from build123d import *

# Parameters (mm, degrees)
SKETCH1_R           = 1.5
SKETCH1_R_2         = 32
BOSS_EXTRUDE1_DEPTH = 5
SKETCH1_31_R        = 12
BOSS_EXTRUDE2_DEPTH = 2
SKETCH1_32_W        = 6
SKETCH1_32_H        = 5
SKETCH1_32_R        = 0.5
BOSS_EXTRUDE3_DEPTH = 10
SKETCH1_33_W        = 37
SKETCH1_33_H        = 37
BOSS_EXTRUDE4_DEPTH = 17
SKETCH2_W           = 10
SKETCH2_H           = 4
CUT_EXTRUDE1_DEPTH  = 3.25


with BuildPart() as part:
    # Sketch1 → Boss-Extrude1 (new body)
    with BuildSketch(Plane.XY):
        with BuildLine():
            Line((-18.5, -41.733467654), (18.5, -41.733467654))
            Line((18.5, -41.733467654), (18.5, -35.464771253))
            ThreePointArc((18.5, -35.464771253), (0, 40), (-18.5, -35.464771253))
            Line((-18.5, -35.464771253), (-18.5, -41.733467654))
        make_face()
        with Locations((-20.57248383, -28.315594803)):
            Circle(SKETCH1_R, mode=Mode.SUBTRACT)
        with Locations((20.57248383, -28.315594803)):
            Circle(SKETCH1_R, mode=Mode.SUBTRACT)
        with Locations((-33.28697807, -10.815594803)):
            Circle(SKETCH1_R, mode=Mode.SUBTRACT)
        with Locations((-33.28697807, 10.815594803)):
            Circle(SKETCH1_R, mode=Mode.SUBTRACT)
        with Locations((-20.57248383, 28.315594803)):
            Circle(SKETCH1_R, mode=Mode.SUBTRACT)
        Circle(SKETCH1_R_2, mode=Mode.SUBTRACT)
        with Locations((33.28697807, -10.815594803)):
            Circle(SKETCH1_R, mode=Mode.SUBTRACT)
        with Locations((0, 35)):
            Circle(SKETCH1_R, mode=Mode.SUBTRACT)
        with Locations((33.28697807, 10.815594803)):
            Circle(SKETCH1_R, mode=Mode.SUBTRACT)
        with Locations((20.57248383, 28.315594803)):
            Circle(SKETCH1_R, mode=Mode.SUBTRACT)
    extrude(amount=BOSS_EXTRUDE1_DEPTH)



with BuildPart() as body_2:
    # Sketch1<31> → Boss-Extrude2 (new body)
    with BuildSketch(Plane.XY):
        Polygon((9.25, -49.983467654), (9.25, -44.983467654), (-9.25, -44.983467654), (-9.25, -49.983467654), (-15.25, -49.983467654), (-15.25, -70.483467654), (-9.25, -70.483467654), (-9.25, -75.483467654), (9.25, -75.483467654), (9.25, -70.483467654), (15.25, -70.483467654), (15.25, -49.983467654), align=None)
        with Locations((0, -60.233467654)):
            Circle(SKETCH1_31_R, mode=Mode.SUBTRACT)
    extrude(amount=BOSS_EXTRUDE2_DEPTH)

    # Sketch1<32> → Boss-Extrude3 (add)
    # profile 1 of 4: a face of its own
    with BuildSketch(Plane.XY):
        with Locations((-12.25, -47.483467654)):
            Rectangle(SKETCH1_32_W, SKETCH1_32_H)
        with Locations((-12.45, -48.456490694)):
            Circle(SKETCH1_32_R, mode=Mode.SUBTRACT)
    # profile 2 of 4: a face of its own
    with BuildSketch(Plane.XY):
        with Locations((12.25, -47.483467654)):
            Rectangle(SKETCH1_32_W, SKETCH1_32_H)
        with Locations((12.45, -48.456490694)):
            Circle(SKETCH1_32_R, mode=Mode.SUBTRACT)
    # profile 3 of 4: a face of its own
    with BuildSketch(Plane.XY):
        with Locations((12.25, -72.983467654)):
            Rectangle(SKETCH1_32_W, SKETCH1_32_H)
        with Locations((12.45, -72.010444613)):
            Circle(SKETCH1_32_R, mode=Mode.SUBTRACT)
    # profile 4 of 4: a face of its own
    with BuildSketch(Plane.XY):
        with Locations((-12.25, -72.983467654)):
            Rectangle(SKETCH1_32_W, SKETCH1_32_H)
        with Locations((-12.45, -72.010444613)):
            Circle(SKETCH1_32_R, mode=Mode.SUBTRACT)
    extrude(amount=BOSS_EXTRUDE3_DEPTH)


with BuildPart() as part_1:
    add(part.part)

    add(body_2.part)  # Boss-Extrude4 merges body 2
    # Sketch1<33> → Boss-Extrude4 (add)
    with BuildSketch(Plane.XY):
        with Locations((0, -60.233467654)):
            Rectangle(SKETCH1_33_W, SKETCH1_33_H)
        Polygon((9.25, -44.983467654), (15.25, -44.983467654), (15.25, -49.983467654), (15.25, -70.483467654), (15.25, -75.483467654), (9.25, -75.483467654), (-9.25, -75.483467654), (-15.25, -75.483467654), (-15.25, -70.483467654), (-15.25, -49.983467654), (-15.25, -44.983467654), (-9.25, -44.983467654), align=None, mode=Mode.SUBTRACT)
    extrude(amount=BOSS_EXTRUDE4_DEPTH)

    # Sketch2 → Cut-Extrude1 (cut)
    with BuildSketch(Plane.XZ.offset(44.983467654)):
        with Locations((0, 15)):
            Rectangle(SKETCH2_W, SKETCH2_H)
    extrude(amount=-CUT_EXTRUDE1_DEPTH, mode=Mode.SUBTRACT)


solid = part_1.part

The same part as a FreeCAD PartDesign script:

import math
import FreeCAD as App
import Part
import Sketcher


def add_polygon(sketch, points):
    """Adds a closed chain of lines whose ends are joined by coincident constraints."""
    first, n = sketch.GeometryCount, len(points)
    for a, b in zip(points, points[1:] + points[:1]):
        sketch.addGeometry(Part.LineSegment(App.Vector(*a, 0), App.Vector(*b, 0)), False)
    for i in range(n):
        sketch.addConstraint(Sketcher.Constraint("Coincident", first + i, 2, first + (i + 1) % n, 1))

doc = App.newDocument("Part")
body = doc.addObject("PartDesign::Body", "Body")

# Sketch on XY plane
sketch1 = doc.addObject("Sketcher::SketchObject", "Sketch")
body.addObject(sketch1)
sketch1.AttachmentSupport = (doc.XY_Plane, [""])
sketch1.MapMode = "FlatFace"
sketch1.addGeometry([
    Part.LineSegment(App.Vector(-18.5, -41.7, 0), App.Vector(18.5, -41.7, 0)),  # 0
    Part.LineSegment(App.Vector(18.5, -41.7, 0), App.Vector(18.5, -35.5, 0)),  # 1
    Part.ArcOfCircle(Part.Circle(App.Vector(0, 0, 0), App.Vector(0, 0, 1), 40), math.radians(-62), math.radians(242)),  # 2
    Part.LineSegment(App.Vector(-18.5, -35.5, 0), App.Vector(-18.5, -41.7, 0)),  # 3
    Part.Circle(App.Vector(-20.6, -28.3, 0), App.Vector(0, 0, 1), 1.5),  # 4
    Part.Circle(App.Vector(-33.3, -10.8, 0), App.Vector(0, 0, 1), 1.5),  # 5
    Part.Circle(App.Vector(20.6, -28.3, 0), App.Vector(0, 0, 1), 1.5),  # 6
    Part.Circle(App.Vector(0, 0, 0), App.Vector(0, 0, 1), 32),  # 7
    Part.Circle(App.Vector(33.3, -10.8, 0), App.Vector(0, 0, 1), 1.5),  # 8
    Part.Circle(App.Vector(-33.3, 10.8, 0), App.Vector(0, 0, 1), 1.5),  # 9
    Part.Circle(App.Vector(-20.6, 28.3, 0), App.Vector(0, 0, 1), 1.5),  # 10
    Part.Circle(App.Vector(33.3, 10.8, 0), App.Vector(0, 0, 1), 1.5),  # 11
    Part.Circle(App.Vector(0, 35, 0), App.Vector(0, 0, 1), 1.5),  # 12
    Part.Circle(App.Vector(20.6, 28.3, 0), App.Vector(0, 0, 1), 1.5),  # 13
], False)
sketch1.addConstraint([
    Sketcher.Constraint("Coincident", 0, 2, 1, 1),
    Sketcher.Constraint("Coincident", 1, 2, 2, 1),
    Sketcher.Constraint("Coincident", 2, 2, 3, 1),
    Sketcher.Constraint("Coincident", 3, 2, 0, 1),
    Sketcher.Constraint("Horizontal", 0),
    Sketcher.Constraint("Vertical", 1),
    Sketcher.Constraint("Vertical", 3),
    Sketcher.Constraint("Coincident", 2, 3, -1, 1),
    Sketcher.Constraint("Coincident", 7, 3, -1, 1),
    Sketcher.Constraint("Equal", 4, 5),
    Sketcher.Constraint("Equal", 5, 6),
    Sketcher.Constraint("Equal", 6, 8),
    Sketcher.Constraint("Equal", 8, 9),
    Sketcher.Constraint("Equal", 9, 10),
    Sketcher.Constraint("Equal", 10, 11),
    Sketcher.Constraint("Equal", 11, 12),
    Sketcher.Constraint("Equal", 12, 13),
    Sketcher.Constraint("Symmetric", 8, 3, 9, 3, -1, 1),
    Sketcher.Constraint("Symmetric", 6, 3, 10, 3, -1, 1),
    Sketcher.Constraint("Symmetric", 5, 3, 11, 3, -1, 1),
    Sketcher.Constraint("Symmetric", 4, 3, 13, 3, -1, 1),
    Sketcher.Constraint("Symmetric", 4, 3, 6, 3, -2),
    Sketcher.Constraint("Symmetric", 5, 3, 8, 3, -2),
    Sketcher.Constraint("PointOnObject", 12, 3, -2),
    Sketcher.Constraint("Horizontal", 1, 2, 2, 2),
    Sketcher.Constraint("Diameter", 4, 3.0),
    Sketcher.Constraint("Diameter", 7, 64.0),
    Sketcher.Constraint("Radius", 2, 40.0),
    Sketcher.Constraint("DistanceX", 0, 1, 0, 2, 37.0),
    Sketcher.Constraint("DistanceY", -1, 1, 12, 3, 35.0),
    Sketcher.Constraint("DistanceY", 4, 3, 5, 3, 17.5),
    Sketcher.Constraint("DistanceY", 1, 1, 1, 2, 6.268696),
    Sketcher.Constraint("DistanceX", 5, 3, -1, 1, 33.286978),
    Sketcher.Constraint("DistanceX", 5, 3, 6, 3, 53.859462),
    Sketcher.Constraint("DistanceY", 5, 3, 9, 3, 21.63119),
])
pad1 = doc.addObject("PartDesign::Pad", "Pad")
body.addObject(pad1)
pad1.Profile = sketch1
pad1.Length = 5
body2 = doc.addObject("PartDesign::Body", "Body001")

# Sketch on XY plane
sketch2 = doc.addObject("Sketcher::SketchObject", "Sketch001")
body2.addObject(sketch2)
sketch2.AttachmentSupport = (doc.getObject("XY_Plane001"), [""])
sketch2.MapMode = "FlatFace"
add_polygon(sketch2, [(9, -50), (9, -45), (-9, -45), (-9, -50), (-15, -50), (-15, -70), (-9, -70), (-9, -75), (9, -75), (9, -70), (15, -70), (15, -50)])  # lines 0-11
sketch2.addGeometry(Part.Circle(App.Vector(0, -60, 0), App.Vector(0, 0, 1), 12), False)  # 12
sketch2.addConstraint([
    Sketcher.Constraint("Vertical", 0),
    Sketcher.Constraint("Horizontal", 1),
    Sketcher.Constraint("Vertical", 2),
    Sketcher.Constraint("Horizontal", 3),
    Sketcher.Constraint("Vertical", 4),
    Sketcher.Constraint("Horizontal", 5),
    Sketcher.Constraint("Vertical", 6),
    Sketcher.Constraint("Horizontal", 7),
    Sketcher.Constraint("Vertical", 8),
    Sketcher.Constraint("Horizontal", 9),
    Sketcher.Constraint("Vertical", 10),
    Sketcher.Constraint("Horizontal", 11),
    Sketcher.Constraint("Symmetric", 5, 2, 8, 2, -2),
    Sketcher.Constraint("Symmetric", 3, 2, 10, 2, -2),
    Sketcher.Constraint("PointOnObject", 12, 3, -2),
    Sketcher.Constraint("Vertical", 2, 2, 5, 2),
    Sketcher.Constraint("Vertical", 0, 2, 7, 2),
    Sketcher.Constraint("Equal", 2, 6),
    Sketcher.Constraint("Diameter", 12, 24.0),
    Sketcher.Constraint("DistanceX", 3, 2, 3, 1, 6.0),
    Sketcher.Constraint("DistanceY", 0, 1, 0, 2, 5.0),
    Sketcher.Constraint("DistanceX", 1, 2, 1, 1, 18.5),
    Sketcher.Constraint("DistanceY", 4, 2, 4, 1, 20.5),
    Sketcher.Constraint("DistanceY", 12, 3, 0, 2, 15.25),
    Sketcher.Constraint("DistanceY", 12, 3, -1, 1, 60.233468),
])
pad2 = doc.addObject("PartDesign::Pad", "Pad001")
body2.addObject(pad2)
pad2.Profile = sketch2
pad2.Length = 2

# Sketch on XY plane
sketch3 = doc.addObject("Sketcher::SketchObject", "Sketch002")
body2.addObject(sketch3)
sketch3.AttachmentSupport = (doc.getObject("XY_Plane001"), [""])
sketch3.MapMode = "FlatFace"
add_polygon(sketch3, [(-15.2, -45), (-15.2, -50), (-9.2, -50), (-9.2, -45)])  # lines 0-3
sketch3.addGeometry(Part.Circle(App.Vector(-12.4, -48.5, 0), App.Vector(0, 0, 1), 0.5), False)  # 4
add_polygon(sketch3, [(9.2, -45), (9.2, -50), (15.2, -50), (15.2, -45)])  # lines 5-8
sketch3.addGeometry(Part.Circle(App.Vector(12.4, -48.5, 0), App.Vector(0, 0, 1), 0.5), False)  # 9
add_polygon(sketch3, [(9.2, -70.5), (9.2, -75.5), (15.2, -75.5), (15.2, -70.5)])  # lines 10-13
sketch3.addGeometry(Part.Circle(App.Vector(12.4, -72, 0), App.Vector(0, 0, 1), 0.5), False)  # 14
add_polygon(sketch3, [(-15.2, -70.5), (-15.2, -75.5), (-9.2, -75.5), (-9.2, -70.5)])  # lines 15-18
sketch3.addGeometry(Part.Circle(App.Vector(-12.4, -72, 0), App.Vector(0, 0, 1), 0.5), False)  # 19
sketch3.addConstraint([
    Sketcher.Constraint("Vertical", 0),
    Sketcher.Constraint("Horizontal", 1),
    Sketcher.Constraint("Vertical", 2),
    Sketcher.Constraint("Horizontal", 3),
    Sketcher.Constraint("Vertical", 5),
    Sketcher.Constraint("Horizontal", 6),
    Sketcher.Constraint("Vertical", 7),
    Sketcher.Constraint("Horizontal", 8),
    Sketcher.Constraint("Vertical", 10),
    Sketcher.Constraint("Horizontal", 11),
    Sketcher.Constraint("Vertical", 12),
    Sketcher.Constraint("Horizontal", 13),
    Sketcher.Constraint("Vertical", 15),
    Sketcher.Constraint("Horizontal", 16),
    Sketcher.Constraint("Vertical", 17),
    Sketcher.Constraint("Horizontal", 18),
    Sketcher.Constraint("Equal", 4, 9),
    Sketcher.Constraint("Equal", 9, 14),
    Sketcher.Constraint("Equal", 14, 19),
    Sketcher.Constraint("Symmetric", 4, 3, 9, 3, -2),
    Sketcher.Constraint("Symmetric", 14, 3, 19, 3, -2),
    Sketcher.Constraint("Symmetric", 1, 2, 5, 2, -2),
    Sketcher.Constraint("Symmetric", 3, 2, 7, 2, -2),
    Sketcher.Constraint("Symmetric", 11, 2, 15, 2, -2),
    Sketcher.Constraint("Symmetric", 13, 2, 17, 2, -2),
    Sketcher.Constraint("Vertical", 9, 3, 14, 3),
    Sketcher.Constraint("Vertical", 8, 2, 10, 2),
    Sketcher.Constraint("Vertical", 7, 2, 11, 2),
    Sketcher.Constraint("Equal", 7, 10),
    Sketcher.Constraint("Diameter", 4, 1.0),
    Sketcher.Constraint("DistanceX", 1, 1, 1, 2, 6.0),
    Sketcher.Constraint("DistanceY", 0, 2, 0, 1, 5.0),
    Sketcher.Constraint("DistanceX", 4, 3, 9, 3, 24.9),
    Sketcher.Constraint("DistanceX", 0, 2, 4, 3, 2.8),
    Sketcher.Constraint("DistanceY", 10, 2, 5, 2, 25.5),
    Sketcher.Constraint("DistanceY", 4, 3, -1, 1, 48.456491),
    Sketcher.Constraint("DistanceY", 14, 3, -1, 1, 72.010445),
    Sketcher.Constraint("DistanceY", 0, 2, -1, 1, 49.983468),
])
pad3 = doc.addObject("PartDesign::Pad", "Pad002")
body2.addObject(pad3)
pad3.Profile = sketch3
pad3.Length = 10
body.AllowCompound = True
doc.recompute()

boolean = doc.addObject("PartDesign::Boolean", "Boolean")
body.addObject(boolean)
boolean.Type = "Fuse"
boolean.addObjects([body2])

# Sketch on XY plane
sketch4 = doc.addObject("Sketcher::SketchObject", "Sketch003")
body.addObject(sketch4)
sketch4.AttachmentSupport = (doc.XY_Plane, [""])
sketch4.MapMode = "FlatFace"
add_polygon(sketch4, [(-18, -42), (-18, -79), (18, -79), (18, -42)])  # lines 0-3
add_polygon(sketch4, [(-15, -45), (15, -45), (15, -75), (-15, -75)])  # lines 4-7
sketch4.addConstraint([
    Sketcher.Constraint("Vertical", 0),
    Sketcher.Constraint("Horizontal", 1),
    Sketcher.Constraint("Vertical", 2),
    Sketcher.Constraint("Horizontal", 3),
    Sketcher.Constraint("Horizontal", 4),
    Sketcher.Constraint("Vertical", 5),
    Sketcher.Constraint("Horizontal", 6),
    Sketcher.Constraint("Vertical", 7),
    Sketcher.Constraint("Equal", 3, 0),
    Sketcher.Constraint("Equal", 6, 5),
    Sketcher.Constraint("DistanceX", 1, 1, 1, 2, 37.0),
    Sketcher.Constraint("DistanceX", 4, 1, 4, 2, 30.5),
    Sketcher.Constraint("DistanceX", 0, 2, -1, 1, 18.5),
    Sketcher.Constraint("DistanceX", -1, 1, 4, 2, 15.25),
    Sketcher.Constraint("DistanceY", 4, 2, 2, 2, 3.25),
    Sketcher.Constraint("DistanceY", 0, 2, -1, 1, 78.733468),
])
pad4 = doc.addObject("PartDesign::Pad", "Pad003")
body.addObject(pad4)
pad4.Profile = sketch4
pad4.Length = 17

# Sketch on XZ plane
sketch5 = doc.addObject("Sketcher::SketchObject", "Sketch004")
body.addObject(sketch5)
sketch5.AttachmentSupport = (doc.XZ_Plane, [""])
sketch5.MapMode = "FlatFace"
sketch5.AttachmentOffset = App.Placement(App.Vector(0, 0, 44.983468), App.Rotation())
add_polygon(sketch5, [(-5, 17), (-5, 13), (5, 13), (5, 17)])  # lines 0-3
sketch5.addConstraint([
    Sketcher.Constraint("Vertical", 0),
    Sketcher.Constraint("Horizontal", 1),
    Sketcher.Constraint("Vertical", 2),
    Sketcher.Constraint("Horizontal", 3),
    Sketcher.Constraint("DistanceX", 1, 1, 1, 2, 10.0),
    Sketcher.Constraint("DistanceY", 0, 2, 0, 1, 4.0),
    Sketcher.Constraint("DistanceX", 0, 2, -1, 1, 5.0),
    Sketcher.Constraint("DistanceY", -1, 1, 0, 2, 13.0),
])
pocket1 = doc.addObject("PartDesign::Pocket", "Pocket")
body.addObject(pocket1)
pocket1.Profile = sketch5
pocket1.Length = 3.25

doc.recompute()
